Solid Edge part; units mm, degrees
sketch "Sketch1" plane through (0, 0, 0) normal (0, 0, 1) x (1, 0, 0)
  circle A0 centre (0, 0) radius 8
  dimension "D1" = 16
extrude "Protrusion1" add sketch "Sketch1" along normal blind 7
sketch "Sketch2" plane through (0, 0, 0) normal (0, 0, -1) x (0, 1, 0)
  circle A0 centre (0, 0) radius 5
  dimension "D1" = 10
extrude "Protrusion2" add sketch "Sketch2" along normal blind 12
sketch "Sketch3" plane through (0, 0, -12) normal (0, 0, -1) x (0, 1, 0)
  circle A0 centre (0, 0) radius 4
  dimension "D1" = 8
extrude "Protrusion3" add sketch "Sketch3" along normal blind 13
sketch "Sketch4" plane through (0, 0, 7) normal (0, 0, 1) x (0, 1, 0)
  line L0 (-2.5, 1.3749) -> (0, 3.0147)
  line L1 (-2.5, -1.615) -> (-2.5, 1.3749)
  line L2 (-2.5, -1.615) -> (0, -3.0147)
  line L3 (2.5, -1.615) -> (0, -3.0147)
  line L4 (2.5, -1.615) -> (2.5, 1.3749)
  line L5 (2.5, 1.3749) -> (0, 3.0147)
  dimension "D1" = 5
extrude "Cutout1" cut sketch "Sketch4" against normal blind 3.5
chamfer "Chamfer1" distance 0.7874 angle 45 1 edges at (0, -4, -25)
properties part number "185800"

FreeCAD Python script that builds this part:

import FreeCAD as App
import Part
import Sketcher

V = App.Vector
Q = App.Units.Quantity


def edges_at(feature, points):
    """Names of the edges that pass closest to the given points."""
    edges = feature.Shape.Edges
    near = lambda p: min(range(len(edges)), key=lambda i: edges[i].distToShape(Part.Vertex(*p))[0])
    return sorted({f"Edge{near(p) + 1}" for p in points})


def add_polygon(sketch, points):
    """Adds a closed chain of lines whose ends are joined by coincident constraints."""
    first, n = sketch.GeometryCount, len(points)
    for a, b in zip(points, points[1:] + points[:1]):
        sketch.addGeometry(Part.LineSegment(App.Vector(*a, 0), App.Vector(*b, 0)), False)
    for i in range(n):
        sketch.addConstraint(Sketcher.Constraint("Coincident", first + i, 2, first + (i + 1) % n, 1))

doc = App.newDocument("Part")
params = doc.addObject("Spreadsheet::Sheet", "Params")
for row, (alias, value) in enumerate([
    ("sketch1_diameter", "16 mm"),
    ("pad1_length", "7 mm"),
    ("sketch2_diameter", "10 mm"),
    ("pad2_length", "12 mm"),
    ("sketch3_diameter", "8 mm"),
    ("pad3_length", "13 mm"),
    ("sketch4_width", "2.99 mm"),
    ("pocket1_length", "3.5 mm"),
    ("chamfer_size", "0.7874 mm"),
], start=1):
    params.set(f"A{row}", alias)
    params.set(f"B{row}", "=" + value)
    params.setAlias(f"B{row}", alias)

body = doc.addObject("PartDesign::Body", "Body")

sketch1 = doc.addObject("Sketcher::SketchObject", "Sketch")
body.addObject(sketch1)
sketch1.AttachmentSupport = (doc.XY_Plane, [""])
sketch1.MapMode = "FlatFace"
sketch1.addGeometry(Part.Circle(V(0, 0, 0), V(0, 0, 1), 8), False)
sketch1.addConstraint([
    Sketcher.Constraint("Coincident", 0, 3, -1, 1),
    Sketcher.Constraint("Diameter", 0, Q("16 mm")),
])
sketch1.setExpression("Constraints[1]", "Params.sketch1_diameter")
pad1 = doc.addObject("PartDesign::Pad", "Pad")
body.addObject(pad1)
pad1.Profile = sketch1
pad1.setExpression("Length", "Params.pad1_length")

sketch2 = doc.addObject("Sketcher::SketchObject", "Sketch001")
body.addObject(sketch2)
sketch2.AttachmentSupport = (doc.XY_Plane, [""])
sketch2.MapMode = "FlatFace"
sketch2.addGeometry(Part.Circle(V(0, 0, 0), V(0, 0, 1), 5), False)
sketch2.addConstraint([
    Sketcher.Constraint("Coincident", 0, 3, -1, 1),
    Sketcher.Constraint("Diameter", 0, Q("10 mm")),
])
sketch2.setExpression("Constraints[1]", "Params.sketch2_diameter")
pad2 = doc.addObject("PartDesign::Pad", "Pad001")
body.addObject(pad2)
pad2.Profile = sketch2
pad2.setExpression("Length", "Params.pad2_length")
pad2.Reversed = True

sketch3 = doc.addObject("Sketcher::SketchObject", "Sketch002")
body.addObject(sketch3)
sketch3.AttachmentSupport = (doc.XY_Plane, [""])
sketch3.MapMode = "FlatFace"
sketch3.AttachmentOffset = App.Placement(V(0, 0, -12), App.Rotation())
sketch3.addGeometry(Part.Circle(V(0, 0, 0), V(0, 0, 1), 4), False)
sketch3.addConstraint([
    Sketcher.Constraint("Coincident", 0, 3, -1, 1),
    Sketcher.Constraint("Diameter", 0, Q("8 mm")),
])
sketch3.setExpression("Constraints[1]", "Params.sketch3_diameter")
pad3 = doc.addObject("PartDesign::Pad", "Pad002")
body.addObject(pad3)
pad3.Profile = sketch3
pad3.setExpression("Length", "Params.pad3_length")
pad3.Reversed = True

sketch4 = doc.addObject("Sketcher::SketchObject", "Sketch003")
body.addObject(sketch4)
sketch4.AttachmentSupport = (doc.XY_Plane, [""])
sketch4.MapMode = "FlatFace"
sketch4.AttachmentOffset = App.Placement(V(0, 0, 7), App.Rotation())
add_polygon(sketch4, [(-3, 0), (-1.4, -2.5), (1.6, -2.5), (3, 0), (1.6, 2.5), (-1.4, 2.5)])
sketch4.addConstraint([
    Sketcher.Constraint("Horizontal", 1),
    Sketcher.Constraint("Horizontal", 4),
    Sketcher.Constraint("Symmetric", 2, 2, 5, 2, -1, 1),
    Sketcher.Constraint("Symmetric", 1, 2, 3, 2, -1),
    Sketcher.Constraint("PointOnObject", 2, 2, -1),
    Sketcher.Constraint("Vertical", 0, 2, 4, 2),
    Sketcher.Constraint("DistanceY", 1, 2, 3, 2, Q("5 mm")),
    Sketcher.Constraint("DistanceX", 1, 1, 1, 2, Q("2.99 mm")),
    Sketcher.Constraint("DistanceX", 0, 2, -1, 1, Q("1.375 mm")),
    Sketcher.Constraint("Distance", 0, Q("2.9898 mm")),
])
sketch4.setExpression("Constraints[13]", "Params.sketch4_width")
pocket1 = doc.addObject("PartDesign::Pocket", "Pocket")
body.addObject(pocket1)
pocket1.Profile = sketch4
pocket1.setExpression("Length", "Params.pocket1_length")
doc.recompute()

chamfer = doc.addObject("PartDesign::Chamfer", "Chamfer")
body.addObject(chamfer)
chamfer.Base = (pocket1, edges_at(pocket1, [(0, -4, -25)]))
chamfer.setExpression("Size", "Params.chamfer_size")

doc.recompute()
